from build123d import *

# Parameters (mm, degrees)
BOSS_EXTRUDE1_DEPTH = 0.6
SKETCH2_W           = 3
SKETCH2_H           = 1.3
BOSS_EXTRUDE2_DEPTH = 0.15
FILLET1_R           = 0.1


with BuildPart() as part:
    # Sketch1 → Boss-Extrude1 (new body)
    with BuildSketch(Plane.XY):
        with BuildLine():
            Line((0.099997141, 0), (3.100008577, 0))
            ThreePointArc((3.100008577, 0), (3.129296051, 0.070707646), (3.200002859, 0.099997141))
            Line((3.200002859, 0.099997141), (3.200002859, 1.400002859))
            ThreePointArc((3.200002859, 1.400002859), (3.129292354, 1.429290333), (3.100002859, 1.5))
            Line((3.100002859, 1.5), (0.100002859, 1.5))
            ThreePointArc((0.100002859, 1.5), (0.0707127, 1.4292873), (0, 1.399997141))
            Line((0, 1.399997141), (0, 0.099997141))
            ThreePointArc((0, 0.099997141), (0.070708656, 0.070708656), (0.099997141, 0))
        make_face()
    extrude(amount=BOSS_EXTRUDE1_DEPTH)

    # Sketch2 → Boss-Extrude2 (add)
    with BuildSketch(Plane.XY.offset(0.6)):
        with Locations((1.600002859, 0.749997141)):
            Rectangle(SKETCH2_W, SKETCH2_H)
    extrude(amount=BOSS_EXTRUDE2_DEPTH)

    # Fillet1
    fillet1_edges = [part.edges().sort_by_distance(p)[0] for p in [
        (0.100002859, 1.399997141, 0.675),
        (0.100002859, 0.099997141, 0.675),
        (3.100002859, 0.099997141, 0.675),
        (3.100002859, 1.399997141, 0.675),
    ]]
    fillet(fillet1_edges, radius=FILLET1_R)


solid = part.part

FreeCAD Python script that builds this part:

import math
import FreeCAD as App
import Part
import Sketcher

V = App.Vector
Q = App.Units.Quantity


def edges_at(feature, points):
    """Names of the edges that pass closest to the given points."""
    edges = feature.Shape.Edges
    near = lambda p: min(range(len(edges)), key=lambda i: edges[i].distToShape(Part.Vertex(*p))[0])
    return sorted({f"Edge{near(p) + 1}" for p in points})

doc = App.newDocument("Part")
body = doc.addObject("PartDesign::Body", "Body")

# Sketch on XY plane
sketch1 = doc.addObject("Sketcher::SketchObject", "Sketch")
body.addObject(sketch1)
sketch1.AttachmentSupport = (doc.XY_Plane, [""])
sketch1.MapMode = "FlatFace"
sketch1.addGeometry(Part.LineSegment(V(0.099997, 0, 0), V(3.100009, 0, 0)), False)
sketch1.addGeometry(Part.ArcOfCircle(Part.Circle(V(3.200006, 0, 0), V(0, 0, 1), 0.099997), math.radians(90.001638), math.radians(180)), False)
sketch1.addGeometry(Part.LineSegment(V(3.200003, 0.099997, 0), V(3.200003, 1.400003, 0)), False)
sketch1.addGeometry(Part.ArcOfCircle(Part.Circle(V(3.2, 1.5, 0), V(0, 0, 1), 0.099997), math.radians(180), math.radians(270.001638)), False)
sketch1.addGeometry(Part.LineSegment(V(3.100003, 1.5, 0), V(0.100003, 1.5, 0)), False)
sketch1.addGeometry(Part.ArcOfCircle(Part.Circle(V(0, 1.5, 0), V(0, 0, 1), 0.100003), math.radians(-90.000001), math.radians(0.000001)), False)
sketch1.addGeometry(Part.LineSegment(V(0, 1.399997, 0), V(0, 0.099997, 0)), False)
sketch1.addGeometry(Part.ArcOfCircle(Part.Circle(V(0, 0, 0), V(0, 0, 1), 0.099997), math.radians(0.000001), math.radians(89.999999)), False)
sketch1.addConstraint(Sketcher.Constraint("Coincident", 0, 2, 1, 2))
sketch1.addConstraint(Sketcher.Constraint("Coincident", 1, 1, 2, 1))
sketch1.addConstraint(Sketcher.Constraint("Coincident", 2, 2, 3, 2))
sketch1.addConstraint(Sketcher.Constraint("Coincident", 3, 1, 4, 1))
sketch1.addConstraint(Sketcher.Constraint("Coincident", 4, 2, 5, 2))
sketch1.addConstraint(Sketcher.Constraint("Coincident", 5, 1, 6, 1))
sketch1.addConstraint(Sketcher.Constraint("Coincident", 6, 2, 7, 2))
sketch1.addConstraint(Sketcher.Constraint("Coincident", 7, 1, 0, 1))
sketch1.addConstraint(Sketcher.Constraint("Horizontal", 0))
sketch1.addConstraint(Sketcher.Constraint("Vertical", 2))
sketch1.addConstraint(Sketcher.Constraint("Horizontal", 4))
sketch1.addConstraint(Sketcher.Constraint("Vertical", 6))
sketch1.addConstraint(Sketcher.Constraint("Coincident", 7, 3, -1, 1))
sketch1.addConstraint(Sketcher.Constraint("Equal", 1, 3))
sketch1.addConstraint(Sketcher.Constraint("Equal", 3, 7))
sketch1.addConstraint(Sketcher.Constraint("PointOnObject", 1, 3, -1))
sketch1.addConstraint(Sketcher.Constraint("PointOnObject", 5, 3, -2))
sketch1.addConstraint(Sketcher.Constraint("PointOnObject", 0, 2, -1))
sketch1.addConstraint(Sketcher.Constraint("PointOnObject", 5, 1, -2))
sketch1.addConstraint(Sketcher.Constraint("Horizontal", 3, 3, 5, 3))
sketch1.addConstraint(Sketcher.Constraint("Horizontal", 5, 3, 3, 1))
sketch1.addConstraint(Sketcher.Constraint("DistanceX", 4, 2, 4, 1, Q("3 mm")))
sketch1.addConstraint(Sketcher.Constraint("DistanceY", 6, 2, 6, 1, Q("1.3 mm")))
sketch1.addConstraint(Sketcher.Constraint("DistanceX", -1, 1, 3, 3, Q("3.2 mm")))
sketch1.addConstraint(Sketcher.Constraint("DistanceX", 3, 1, 2, 2, Q("0.1 mm")))
sketch1.addConstraint(Sketcher.Constraint("Radius", 1, Q("0.099997 mm")))
sketch1.addConstraint(Sketcher.Constraint("DistanceX", 0, 1, 0, 2, Q("3.000011 mm")))
pad1 = doc.addObject("PartDesign::Pad", "Pad")
body.addObject(pad1)
pad1.Profile = sketch1
pad1.Length = 0.6

# Sketch on XY plane
sketch2 = doc.addObject("Sketcher::SketchObject", "Sketch001")
body.addObject(sketch2)
sketch2.AttachmentSupport = (doc.XY_Plane, [""])
sketch2.MapMode = "FlatFace"
sketch2.AttachmentOffset = App.Placement(V(0, 0, 0.6), App.Rotation())
sketch2.addGeometry(Part.LineSegment(V(0.100003, 1.399997, 0), V(0.100003, 0.099997, 0)), False)
sketch2.addGeometry(Part.LineSegment(V(0.100003, 0.099997, 0), V(3.100003, 0.099997, 0)), False)
sketch2.addGeometry(Part.LineSegment(V(3.100003, 0.099997, 0), V(3.100003, 1.399997, 0)), False)
sketch2.addGeometry(Part.LineSegment(V(3.100003, 1.399997, 0), V(0.100003, 1.399997, 0)), False)
sketch2.addConstraint(Sketcher.Constraint("Coincident", 0, 2, 1, 1))
sketch2.addConstraint(Sketcher.Constraint("Coincident", 1, 2, 2, 1))
sketch2.addConstraint(Sketcher.Constraint("Coincident", 2, 2, 3, 1))
sketch2.addConstraint(Sketcher.Constraint("Coincident", 3, 2, 0, 1))
sketch2.addConstraint(Sketcher.Constraint("Vertical", 0))
sketch2.addConstraint(Sketcher.Constraint("Horizontal", 1))
sketch2.addConstraint(Sketcher.Constraint("Vertical", 2))
sketch2.addConstraint(Sketcher.Constraint("Horizontal", 3))
sketch2.addConstraint(Sketcher.Constraint("DistanceX", 1, 1, 1, 2, Q("3 mm")))
sketch2.addConstraint(Sketcher.Constraint("DistanceY", 0, 2, 0, 1, Q("1.3 mm")))
sketch2.addConstraint(Sketcher.Constraint("DistanceX", -1, 1, 0, 2, Q("0.100003 mm")))
sketch2.addConstraint(Sketcher.Constraint("DistanceY", -1, 1, 0, 2, Q("0.099997 mm")))
pad2 = doc.addObject("PartDesign::Pad", "Pad001")
body.addObject(pad2)
pad2.Profile = sketch2
pad2.Length = 0.15
doc.recompute()

fillet = doc.addObject("PartDesign::Fillet", "Fillet")
body.addObject(fillet)
fillet.Base = (pad2, edges_at(pad2, [
    (0.1, 1.4, 0.675),
    (0.1, 0.1, 0.675),
    (3.1, 0.1, 0.675),
    (3.1, 1.4, 0.675),
]))
fillet.Radius = 0.1

doc.recompute()
